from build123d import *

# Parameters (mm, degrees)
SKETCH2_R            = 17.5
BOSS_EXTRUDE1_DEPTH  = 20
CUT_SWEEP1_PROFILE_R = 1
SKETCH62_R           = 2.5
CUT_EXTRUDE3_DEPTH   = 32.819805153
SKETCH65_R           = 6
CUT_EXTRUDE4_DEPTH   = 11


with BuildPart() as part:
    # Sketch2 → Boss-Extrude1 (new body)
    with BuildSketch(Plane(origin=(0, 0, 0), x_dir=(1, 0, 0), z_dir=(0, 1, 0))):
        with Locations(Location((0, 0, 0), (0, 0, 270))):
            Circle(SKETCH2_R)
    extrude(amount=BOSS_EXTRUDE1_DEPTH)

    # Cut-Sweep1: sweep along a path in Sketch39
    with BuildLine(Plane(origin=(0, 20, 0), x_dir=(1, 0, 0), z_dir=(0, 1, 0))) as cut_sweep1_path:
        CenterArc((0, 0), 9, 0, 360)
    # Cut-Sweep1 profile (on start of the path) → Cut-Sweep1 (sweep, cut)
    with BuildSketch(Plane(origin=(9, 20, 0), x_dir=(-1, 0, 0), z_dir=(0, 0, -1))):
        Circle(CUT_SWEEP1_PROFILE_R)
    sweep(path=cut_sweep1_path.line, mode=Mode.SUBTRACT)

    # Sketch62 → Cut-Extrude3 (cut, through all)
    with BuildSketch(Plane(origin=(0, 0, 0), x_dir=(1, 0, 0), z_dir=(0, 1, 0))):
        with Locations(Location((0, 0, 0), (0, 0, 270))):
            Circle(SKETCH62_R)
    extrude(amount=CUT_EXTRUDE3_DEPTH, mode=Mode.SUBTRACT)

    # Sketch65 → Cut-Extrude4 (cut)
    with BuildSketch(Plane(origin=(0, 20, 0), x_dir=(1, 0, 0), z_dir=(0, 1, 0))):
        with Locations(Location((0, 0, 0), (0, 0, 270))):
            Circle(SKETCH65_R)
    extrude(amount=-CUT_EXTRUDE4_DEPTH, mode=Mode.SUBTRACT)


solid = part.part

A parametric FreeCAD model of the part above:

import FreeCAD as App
import Part
import Sketcher

V = App.Vector

doc = App.newDocument("Part")
params = doc.addObject("Spreadsheet::Sheet", "Params")
for row, (alias, value) in enumerate([
    ("sketch1_diameter", "35 mm"),
    ("pad1_length", "20 mm"),
    ("sketch2_diameter", "2 mm"),
    ("sketch3_diameter", "18 mm"),
    ("sketch4_diameter", "5 mm"),
    ("sketch5_diameter", "12 mm"),
    ("pocket2_length", "11 mm"),
], start=1):
    params.set(f"A{row}", alias)
    params.set(f"B{row}", "=" + value)
    params.setAlias(f"B{row}", alias)

body = doc.addObject("PartDesign::Body", "Body")

# Sketch on XZ plane
sketch1 = body.newObject("Sketcher::SketchObject", "Sketch")
sketch1.AttachmentSupport = (doc.getObject("XZ_Plane"), [""])
sketch1.MapMode = "FlatFace"
sketch1.addGeometry(Part.Circle(V(0, 0, 0), V(0, 0, 1), 17.5), False)
sketch1.addConstraint([
    Sketcher.Constraint("Coincident", 0, 3, -1, 1),
    Sketcher.Constraint("Diameter", 0, 35.0),
])
sketch1.setExpression("Constraints[1]", "Params.sketch1_diameter")
pad1 = body.newObject("PartDesign::Pad", "Pad")
pad1.Profile = sketch1
pad1.setExpression("Length", "Params.pad1_length")
pad1.Reversed = True

# Sketch on XY plane
sketch2 = body.newObject("Sketcher::SketchObject", "Sketch001")
sketch2.AttachmentSupport = (doc.getObject("XY_Plane"), [""])
sketch2.MapMode = "FlatFace"
sketch2.addGeometry(Part.Circle(V(9, 20, 0), V(0, 0, 1), 1), False)
sketch2.addConstraint([
    Sketcher.Constraint("Diameter", 0, 2.0),
    Sketcher.Constraint("DistanceX", -1, 1, 0, 3, 9.0),
    Sketcher.Constraint("DistanceY", -1, 1, 0, 3, 20.0),
])
sketch2.setExpression("Constraints[0]", "Params.sketch2_diameter")

# Sketch on XZ plane
sketch3 = body.newObject("Sketcher::SketchObject", "Sketch002")
sketch3.AttachmentSupport = (doc.getObject("XZ_Plane"), [""])
sketch3.MapMode = "FlatFace"
sketch3.AttachmentOffset = App.Placement(V(0, 0, -20), App.Rotation())
sketch3.addGeometry(Part.Circle(V(0, 0, 0), V(0, 0, 1), 9), False)
sketch3.addConstraint([
    Sketcher.Constraint("Coincident", 0, 3, -1, 1),
    Sketcher.Constraint("Diameter", 0, 18.0),
])
sketch3.setExpression("Constraints[1]", "Params.sketch3_diameter")
doc.recompute()

subtractivepipe = body.newObject("PartDesign::SubtractivePipe", "SubtractivePipe")
subtractivepipe.Profile = sketch2
subtractivepipe.Spine = (sketch3, ["Edge1"])

# Sketch on XZ plane
sketch4 = body.newObject("Sketcher::SketchObject", "Sketch003")
sketch4.AttachmentSupport = (doc.getObject("XZ_Plane"), [""])
sketch4.MapMode = "FlatFace"
sketch4.addGeometry(Part.Circle(V(0, 0, 0), V(0, 0, 1), 2.5), False)
sketch4.addConstraint([
    Sketcher.Constraint("Coincident", 0, 3, -1, 1),
    Sketcher.Constraint("Diameter", 0, 5.0),
])
sketch4.setExpression("Constraints[1]", "Params.sketch4_diameter")
pocket1 = body.newObject("PartDesign::Pocket", "Pocket")
pocket1.Profile = sketch4
pocket1.Type = "ThroughAll"

# Sketch on XZ plane
sketch5 = body.newObject("Sketcher::SketchObject", "Sketch004")
sketch5.AttachmentSupport = (doc.getObject("XZ_Plane"), [""])
sketch5.MapMode = "FlatFace"
sketch5.AttachmentOffset = App.Placement(V(0, 0, -20), App.Rotation())
sketch5.addGeometry(Part.Circle(V(0, 0, 0), V(0, 0, 1), 6), False)
sketch5.addConstraint([
    Sketcher.Constraint("Coincident", 0, 3, -1, 1),
    Sketcher.Constraint("Diameter", 0, 12.0),
])
sketch5.setExpression("Constraints[1]", "Params.sketch5_diameter")
pocket2 = body.newObject("PartDesign::Pocket", "Pocket001")
pocket2.Profile = sketch5
pocket2.setExpression("Length", "Params.pocket2_length")
pocket2.Reversed = True

doc.recompute()
